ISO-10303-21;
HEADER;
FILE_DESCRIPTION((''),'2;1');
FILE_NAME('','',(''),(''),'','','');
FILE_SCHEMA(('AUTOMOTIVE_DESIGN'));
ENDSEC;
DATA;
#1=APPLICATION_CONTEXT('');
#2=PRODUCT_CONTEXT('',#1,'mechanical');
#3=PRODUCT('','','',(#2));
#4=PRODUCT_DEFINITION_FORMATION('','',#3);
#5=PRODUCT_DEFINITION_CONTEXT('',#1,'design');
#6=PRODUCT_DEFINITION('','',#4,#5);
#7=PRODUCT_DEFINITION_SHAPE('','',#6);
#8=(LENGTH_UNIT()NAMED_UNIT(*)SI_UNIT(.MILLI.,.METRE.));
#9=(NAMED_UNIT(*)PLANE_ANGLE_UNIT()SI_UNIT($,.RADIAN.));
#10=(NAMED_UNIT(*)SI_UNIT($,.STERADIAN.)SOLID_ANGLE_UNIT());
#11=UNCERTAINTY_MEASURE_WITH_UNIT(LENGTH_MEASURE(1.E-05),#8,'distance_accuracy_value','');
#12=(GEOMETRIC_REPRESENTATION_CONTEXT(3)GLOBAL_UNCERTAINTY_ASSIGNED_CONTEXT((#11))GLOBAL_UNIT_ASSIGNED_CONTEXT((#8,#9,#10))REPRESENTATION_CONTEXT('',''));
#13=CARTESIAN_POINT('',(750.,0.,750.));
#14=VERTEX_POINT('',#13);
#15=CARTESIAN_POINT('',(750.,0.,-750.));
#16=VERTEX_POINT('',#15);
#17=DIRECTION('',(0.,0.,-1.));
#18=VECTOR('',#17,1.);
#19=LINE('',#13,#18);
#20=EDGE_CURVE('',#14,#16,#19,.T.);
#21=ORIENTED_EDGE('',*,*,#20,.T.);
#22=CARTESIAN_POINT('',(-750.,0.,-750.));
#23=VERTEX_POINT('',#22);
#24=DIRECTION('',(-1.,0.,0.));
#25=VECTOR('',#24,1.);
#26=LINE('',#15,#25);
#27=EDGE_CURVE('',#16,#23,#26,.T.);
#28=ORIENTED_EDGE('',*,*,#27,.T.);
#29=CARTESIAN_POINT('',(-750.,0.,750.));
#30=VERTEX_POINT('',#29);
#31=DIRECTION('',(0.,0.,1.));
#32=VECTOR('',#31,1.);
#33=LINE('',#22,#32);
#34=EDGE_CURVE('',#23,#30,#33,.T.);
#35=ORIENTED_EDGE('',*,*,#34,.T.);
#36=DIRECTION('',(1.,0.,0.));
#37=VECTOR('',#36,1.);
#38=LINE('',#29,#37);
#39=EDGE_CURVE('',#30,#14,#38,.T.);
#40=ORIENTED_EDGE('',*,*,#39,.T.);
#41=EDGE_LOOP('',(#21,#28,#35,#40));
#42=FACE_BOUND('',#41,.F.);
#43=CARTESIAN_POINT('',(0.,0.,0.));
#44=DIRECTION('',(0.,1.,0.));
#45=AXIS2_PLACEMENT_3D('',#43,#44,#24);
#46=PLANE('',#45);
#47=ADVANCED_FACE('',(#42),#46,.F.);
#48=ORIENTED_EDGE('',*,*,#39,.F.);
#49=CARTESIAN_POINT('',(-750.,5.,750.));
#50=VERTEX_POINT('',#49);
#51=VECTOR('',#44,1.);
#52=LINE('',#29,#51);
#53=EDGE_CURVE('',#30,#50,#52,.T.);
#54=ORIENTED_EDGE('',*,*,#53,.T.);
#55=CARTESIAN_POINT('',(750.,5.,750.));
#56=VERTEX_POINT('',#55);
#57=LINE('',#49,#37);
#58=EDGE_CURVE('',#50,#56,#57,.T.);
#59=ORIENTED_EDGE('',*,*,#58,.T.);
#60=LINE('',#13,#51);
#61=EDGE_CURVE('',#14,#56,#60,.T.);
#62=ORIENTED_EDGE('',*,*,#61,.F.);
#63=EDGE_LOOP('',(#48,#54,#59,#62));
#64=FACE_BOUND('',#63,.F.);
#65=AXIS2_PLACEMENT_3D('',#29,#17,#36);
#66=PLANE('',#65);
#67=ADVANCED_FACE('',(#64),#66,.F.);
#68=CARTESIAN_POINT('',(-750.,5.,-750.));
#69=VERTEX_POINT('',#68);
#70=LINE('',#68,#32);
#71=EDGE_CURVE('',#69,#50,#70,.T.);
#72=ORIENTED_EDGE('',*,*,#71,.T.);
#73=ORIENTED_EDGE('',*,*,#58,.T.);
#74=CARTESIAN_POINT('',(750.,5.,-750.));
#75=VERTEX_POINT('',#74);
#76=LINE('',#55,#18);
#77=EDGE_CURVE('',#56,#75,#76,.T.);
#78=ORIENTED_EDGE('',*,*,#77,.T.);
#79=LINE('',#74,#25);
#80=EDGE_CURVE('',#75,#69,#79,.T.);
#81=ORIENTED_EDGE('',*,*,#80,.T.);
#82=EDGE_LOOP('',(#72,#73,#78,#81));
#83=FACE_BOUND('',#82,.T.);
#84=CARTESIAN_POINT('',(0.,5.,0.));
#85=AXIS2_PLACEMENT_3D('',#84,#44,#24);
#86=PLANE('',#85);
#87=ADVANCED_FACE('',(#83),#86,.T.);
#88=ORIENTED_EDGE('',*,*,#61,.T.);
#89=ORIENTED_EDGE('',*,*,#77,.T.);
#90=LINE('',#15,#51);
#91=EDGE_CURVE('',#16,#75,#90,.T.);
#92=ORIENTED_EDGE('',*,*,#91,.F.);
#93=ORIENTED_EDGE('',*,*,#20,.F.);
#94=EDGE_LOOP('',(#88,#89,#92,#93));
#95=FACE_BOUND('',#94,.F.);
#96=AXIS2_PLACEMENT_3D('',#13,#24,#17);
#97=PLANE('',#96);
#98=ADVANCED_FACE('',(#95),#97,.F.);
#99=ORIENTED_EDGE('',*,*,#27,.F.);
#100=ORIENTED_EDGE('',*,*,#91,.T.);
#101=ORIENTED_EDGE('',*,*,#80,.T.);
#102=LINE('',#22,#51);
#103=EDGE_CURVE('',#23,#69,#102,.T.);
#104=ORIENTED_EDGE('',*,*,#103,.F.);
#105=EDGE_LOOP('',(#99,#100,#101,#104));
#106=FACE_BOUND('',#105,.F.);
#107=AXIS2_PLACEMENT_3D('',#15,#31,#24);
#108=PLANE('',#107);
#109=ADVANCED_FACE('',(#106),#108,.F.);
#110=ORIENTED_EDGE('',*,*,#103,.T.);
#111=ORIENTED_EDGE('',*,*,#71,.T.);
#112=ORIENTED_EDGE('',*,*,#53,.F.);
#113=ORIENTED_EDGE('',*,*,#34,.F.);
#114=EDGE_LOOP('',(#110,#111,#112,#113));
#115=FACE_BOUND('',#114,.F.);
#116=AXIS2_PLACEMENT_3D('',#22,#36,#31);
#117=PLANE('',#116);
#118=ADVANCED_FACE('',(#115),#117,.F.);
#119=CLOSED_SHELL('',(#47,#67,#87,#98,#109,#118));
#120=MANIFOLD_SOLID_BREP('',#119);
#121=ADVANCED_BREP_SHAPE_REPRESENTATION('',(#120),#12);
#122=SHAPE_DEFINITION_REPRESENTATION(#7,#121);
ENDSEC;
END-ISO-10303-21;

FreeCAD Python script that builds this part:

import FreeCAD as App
import Part
import Sketcher

V = App.Vector
Q = App.Units.Quantity

doc = App.newDocument("Part")
body = doc.addObject("PartDesign::Body", "Body")

# Sketch on XZ plane
sketch1 = body.newObject("Sketcher::SketchObject", "Sketch")
sketch1.AttachmentSupport = (doc.getObject("XZ_Plane"), [""])
sketch1.MapMode = "FlatFace"
sketch1.addGeometry(Part.LineSegment(V(-750, -750, 0), V(-750, 750, 0)), False)
sketch1.addGeometry(Part.LineSegment(V(-750, 750, 0), V(750, 750, 0)), False)
sketch1.addGeometry(Part.LineSegment(V(750, 750, 0), V(750, -750, 0)), False)
sketch1.addGeometry(Part.LineSegment(V(750, -750, 0), V(-750, -750, 0)), False)
sketch1.addConstraint(Sketcher.Constraint("Coincident", 0, 2, 1, 1))
sketch1.addConstraint(Sketcher.Constraint("Coincident", 1, 2, 2, 1))
sketch1.addConstraint(Sketcher.Constraint("Coincident", 2, 2, 3, 1))
sketch1.addConstraint(Sketcher.Constraint("Coincident", 3, 2, 0, 1))
sketch1.addConstraint(Sketcher.Constraint("Vertical", 0))
sketch1.addConstraint(Sketcher.Constraint("Horizontal", 1))
sketch1.addConstraint(Sketcher.Constraint("Vertical", 2))
sketch1.addConstraint(Sketcher.Constraint("Horizontal", 3))
sketch1.addConstraint(Sketcher.Constraint("Symmetric", 0, 2, 2, 2, -1, 1))
sketch1.addConstraint(Sketcher.Constraint("Equal", 3, 0))
sketch1.addConstraint(Sketcher.Constraint("DistanceX", 1, 1, 1, 2, Q("1500 mm")))
pad1 = body.newObject("PartDesign::Pad", "Pad")
pad1.Profile = sketch1
pad1.Length = 5
pad1.Reversed = True

doc.recompute()
